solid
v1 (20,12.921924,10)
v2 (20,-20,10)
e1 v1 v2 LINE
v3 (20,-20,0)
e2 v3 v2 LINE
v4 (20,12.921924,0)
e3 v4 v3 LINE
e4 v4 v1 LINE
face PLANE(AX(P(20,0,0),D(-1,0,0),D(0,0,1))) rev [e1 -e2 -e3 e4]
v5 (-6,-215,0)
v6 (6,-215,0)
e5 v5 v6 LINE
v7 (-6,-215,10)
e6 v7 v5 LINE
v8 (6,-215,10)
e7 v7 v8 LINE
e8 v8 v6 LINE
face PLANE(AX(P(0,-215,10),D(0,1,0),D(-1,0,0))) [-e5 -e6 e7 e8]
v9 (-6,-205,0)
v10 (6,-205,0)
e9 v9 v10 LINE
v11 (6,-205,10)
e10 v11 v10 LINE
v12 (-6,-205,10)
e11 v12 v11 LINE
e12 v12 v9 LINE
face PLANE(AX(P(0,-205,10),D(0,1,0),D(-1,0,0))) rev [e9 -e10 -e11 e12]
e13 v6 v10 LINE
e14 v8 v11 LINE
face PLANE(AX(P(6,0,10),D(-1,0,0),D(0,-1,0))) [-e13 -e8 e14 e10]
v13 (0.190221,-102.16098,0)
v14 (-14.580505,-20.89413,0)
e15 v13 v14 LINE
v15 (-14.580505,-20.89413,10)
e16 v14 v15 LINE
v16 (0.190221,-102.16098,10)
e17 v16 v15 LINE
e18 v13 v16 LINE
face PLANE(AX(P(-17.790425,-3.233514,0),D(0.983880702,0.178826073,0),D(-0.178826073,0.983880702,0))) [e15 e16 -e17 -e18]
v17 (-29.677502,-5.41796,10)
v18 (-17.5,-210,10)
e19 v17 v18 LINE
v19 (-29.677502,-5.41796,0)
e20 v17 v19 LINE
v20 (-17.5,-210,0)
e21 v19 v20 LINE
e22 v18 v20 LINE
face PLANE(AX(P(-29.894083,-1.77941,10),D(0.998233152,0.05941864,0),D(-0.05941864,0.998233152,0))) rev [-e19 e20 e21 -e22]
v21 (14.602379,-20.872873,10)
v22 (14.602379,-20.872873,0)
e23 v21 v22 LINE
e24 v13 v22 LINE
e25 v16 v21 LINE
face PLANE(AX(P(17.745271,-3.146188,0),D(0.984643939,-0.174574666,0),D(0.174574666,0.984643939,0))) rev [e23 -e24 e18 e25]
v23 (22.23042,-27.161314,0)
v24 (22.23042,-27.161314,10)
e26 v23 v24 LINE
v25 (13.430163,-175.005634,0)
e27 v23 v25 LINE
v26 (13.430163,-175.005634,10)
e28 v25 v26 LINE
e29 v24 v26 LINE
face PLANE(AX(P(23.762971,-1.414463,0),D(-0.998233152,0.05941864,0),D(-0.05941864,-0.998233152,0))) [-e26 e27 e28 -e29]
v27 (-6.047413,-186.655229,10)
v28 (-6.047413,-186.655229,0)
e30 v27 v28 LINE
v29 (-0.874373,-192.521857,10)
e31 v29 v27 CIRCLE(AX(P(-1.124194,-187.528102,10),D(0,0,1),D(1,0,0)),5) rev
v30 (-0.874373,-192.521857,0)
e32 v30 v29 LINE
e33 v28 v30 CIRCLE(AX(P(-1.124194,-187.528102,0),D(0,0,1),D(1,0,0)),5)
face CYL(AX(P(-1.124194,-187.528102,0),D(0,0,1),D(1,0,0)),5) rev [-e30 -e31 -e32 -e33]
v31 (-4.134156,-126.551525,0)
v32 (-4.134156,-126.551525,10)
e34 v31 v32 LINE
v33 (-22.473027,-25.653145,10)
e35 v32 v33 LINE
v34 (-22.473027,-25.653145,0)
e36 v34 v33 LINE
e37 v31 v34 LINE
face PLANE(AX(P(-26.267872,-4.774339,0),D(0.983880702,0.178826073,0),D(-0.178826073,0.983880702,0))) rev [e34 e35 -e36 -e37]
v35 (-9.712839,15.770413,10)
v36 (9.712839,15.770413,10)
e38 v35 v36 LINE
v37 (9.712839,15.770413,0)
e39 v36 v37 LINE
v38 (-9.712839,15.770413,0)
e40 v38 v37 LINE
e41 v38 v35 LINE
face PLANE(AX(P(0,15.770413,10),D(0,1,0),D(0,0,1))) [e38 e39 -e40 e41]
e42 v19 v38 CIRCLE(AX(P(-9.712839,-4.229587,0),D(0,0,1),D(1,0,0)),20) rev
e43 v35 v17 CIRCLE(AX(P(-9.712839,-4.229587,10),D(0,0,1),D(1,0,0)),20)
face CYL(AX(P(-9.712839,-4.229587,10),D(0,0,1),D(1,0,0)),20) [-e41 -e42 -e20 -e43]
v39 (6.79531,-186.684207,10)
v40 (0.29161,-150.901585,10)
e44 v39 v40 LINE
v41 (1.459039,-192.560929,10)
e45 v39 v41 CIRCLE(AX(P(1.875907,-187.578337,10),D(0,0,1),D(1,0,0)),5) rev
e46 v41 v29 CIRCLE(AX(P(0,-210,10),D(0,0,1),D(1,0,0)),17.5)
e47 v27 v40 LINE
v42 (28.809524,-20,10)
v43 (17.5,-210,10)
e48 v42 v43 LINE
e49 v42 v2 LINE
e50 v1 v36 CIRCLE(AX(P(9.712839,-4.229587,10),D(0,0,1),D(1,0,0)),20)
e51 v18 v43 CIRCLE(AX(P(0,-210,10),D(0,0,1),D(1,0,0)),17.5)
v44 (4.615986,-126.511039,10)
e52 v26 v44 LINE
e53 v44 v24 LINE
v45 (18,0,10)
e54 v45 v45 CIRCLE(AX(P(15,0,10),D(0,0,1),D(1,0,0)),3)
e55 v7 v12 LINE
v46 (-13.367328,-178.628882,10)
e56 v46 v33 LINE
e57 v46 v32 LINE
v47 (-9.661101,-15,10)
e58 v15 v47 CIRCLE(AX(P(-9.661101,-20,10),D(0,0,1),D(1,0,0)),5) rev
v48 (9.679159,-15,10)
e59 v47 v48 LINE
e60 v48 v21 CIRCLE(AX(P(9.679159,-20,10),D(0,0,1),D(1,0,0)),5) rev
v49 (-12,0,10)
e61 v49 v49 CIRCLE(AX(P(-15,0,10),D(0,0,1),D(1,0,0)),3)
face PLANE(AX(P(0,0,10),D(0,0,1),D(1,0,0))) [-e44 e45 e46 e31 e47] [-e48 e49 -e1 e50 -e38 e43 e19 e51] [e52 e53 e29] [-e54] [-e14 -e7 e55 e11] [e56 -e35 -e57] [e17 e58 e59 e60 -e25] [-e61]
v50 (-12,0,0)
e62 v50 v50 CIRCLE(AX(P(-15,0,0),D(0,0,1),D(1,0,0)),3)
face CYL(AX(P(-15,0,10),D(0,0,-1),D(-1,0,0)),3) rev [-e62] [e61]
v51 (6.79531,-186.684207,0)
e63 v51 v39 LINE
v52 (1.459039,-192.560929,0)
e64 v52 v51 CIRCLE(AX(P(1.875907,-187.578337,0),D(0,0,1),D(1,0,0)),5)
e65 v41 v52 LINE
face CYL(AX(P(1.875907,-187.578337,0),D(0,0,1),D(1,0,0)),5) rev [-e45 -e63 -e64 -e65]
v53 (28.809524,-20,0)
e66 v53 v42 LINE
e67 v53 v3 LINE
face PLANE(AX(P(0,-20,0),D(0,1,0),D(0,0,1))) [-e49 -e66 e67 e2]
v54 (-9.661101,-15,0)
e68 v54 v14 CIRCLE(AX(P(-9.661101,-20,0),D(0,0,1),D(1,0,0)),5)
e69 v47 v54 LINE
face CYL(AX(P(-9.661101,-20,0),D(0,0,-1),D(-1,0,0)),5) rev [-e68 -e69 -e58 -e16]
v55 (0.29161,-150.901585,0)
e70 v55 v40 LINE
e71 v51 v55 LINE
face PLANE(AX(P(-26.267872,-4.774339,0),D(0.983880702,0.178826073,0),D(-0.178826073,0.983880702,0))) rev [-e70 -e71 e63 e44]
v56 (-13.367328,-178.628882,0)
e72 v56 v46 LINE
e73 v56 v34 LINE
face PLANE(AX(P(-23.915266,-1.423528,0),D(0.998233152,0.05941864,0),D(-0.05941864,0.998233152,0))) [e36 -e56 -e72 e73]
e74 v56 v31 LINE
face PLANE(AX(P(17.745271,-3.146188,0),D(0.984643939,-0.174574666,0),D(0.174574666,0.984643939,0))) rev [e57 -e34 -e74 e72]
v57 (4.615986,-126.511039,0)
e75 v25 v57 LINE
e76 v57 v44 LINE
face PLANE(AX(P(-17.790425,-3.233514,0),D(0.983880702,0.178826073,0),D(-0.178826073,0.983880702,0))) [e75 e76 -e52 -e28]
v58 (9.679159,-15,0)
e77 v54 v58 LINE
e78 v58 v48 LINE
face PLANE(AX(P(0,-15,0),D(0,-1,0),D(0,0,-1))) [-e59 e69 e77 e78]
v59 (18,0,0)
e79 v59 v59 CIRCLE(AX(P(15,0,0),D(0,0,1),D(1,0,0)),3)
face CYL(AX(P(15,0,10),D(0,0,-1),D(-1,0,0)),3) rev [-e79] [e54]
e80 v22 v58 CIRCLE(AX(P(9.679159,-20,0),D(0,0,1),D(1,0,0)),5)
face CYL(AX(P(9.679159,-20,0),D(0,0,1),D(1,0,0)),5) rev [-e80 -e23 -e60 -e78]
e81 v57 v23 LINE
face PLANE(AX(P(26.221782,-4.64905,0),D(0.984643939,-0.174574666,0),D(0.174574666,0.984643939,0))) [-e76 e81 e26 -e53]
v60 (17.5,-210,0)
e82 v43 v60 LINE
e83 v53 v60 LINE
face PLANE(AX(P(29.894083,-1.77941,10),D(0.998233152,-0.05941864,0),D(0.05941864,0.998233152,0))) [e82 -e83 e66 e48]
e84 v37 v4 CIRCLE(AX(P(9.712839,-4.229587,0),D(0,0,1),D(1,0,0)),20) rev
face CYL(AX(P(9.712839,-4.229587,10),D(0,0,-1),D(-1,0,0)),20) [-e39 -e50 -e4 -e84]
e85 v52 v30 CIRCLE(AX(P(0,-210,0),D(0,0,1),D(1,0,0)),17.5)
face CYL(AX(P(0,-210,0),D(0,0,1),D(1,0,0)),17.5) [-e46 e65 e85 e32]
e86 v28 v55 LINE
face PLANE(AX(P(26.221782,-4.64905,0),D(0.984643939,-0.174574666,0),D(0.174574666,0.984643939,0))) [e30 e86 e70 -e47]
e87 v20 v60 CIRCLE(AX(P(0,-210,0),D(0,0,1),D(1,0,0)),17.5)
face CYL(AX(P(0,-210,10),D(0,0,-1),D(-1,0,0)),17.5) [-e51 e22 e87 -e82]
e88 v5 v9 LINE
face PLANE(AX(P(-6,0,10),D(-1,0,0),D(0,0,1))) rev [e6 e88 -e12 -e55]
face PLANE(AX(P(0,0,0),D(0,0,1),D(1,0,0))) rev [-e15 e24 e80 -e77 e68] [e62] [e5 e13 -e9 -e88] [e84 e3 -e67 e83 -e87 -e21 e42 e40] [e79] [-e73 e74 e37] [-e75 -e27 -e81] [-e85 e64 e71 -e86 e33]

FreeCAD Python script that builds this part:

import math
import FreeCAD as App
import Part
import Sketcher
from FreeCAD import Vector
Q = App.Units.Quantity


def edges_at(feature, points):
    """Names of the edges that pass closest to the given points."""
    edges = feature.Shape.Edges
    near = lambda p: min(range(len(edges)), key=lambda i: edges[i].distToShape(Part.Vertex(*p))[0])
    return sorted({f"Edge{near(p) + 1}" for p in points})

doc = App.newDocument("Part")
body = doc.addObject("PartDesign::Body", "Body")

sketch1 = body.newObject("Sketcher::SketchObject", "Sketch")
sketch1.AttachmentSupport = (doc.getObject("XY_Plane"), [""])
sketch1.MapMode = "FlatFace"
sketch1.addGeometry([
    Part.LineSegment(Vector(-30, 15.8, 0), Vector(-30, 0, 0)),
    Part.LineSegment(Vector(-30, 0, 0), Vector(-17.5, -210, 0)),
    Part.ArcOfCircle(Part.Circle(Vector(0, -210, 0), Vector(0, 0, 1), 17.5), math.radians(180), math.radians(360)),
    Part.LineSegment(Vector(17.5, -210, 0), Vector(30, 0, 0)),
    Part.LineSegment(Vector(30, 0, 0), Vector(30, 15.8, 0)),
    Part.LineSegment(Vector(30, 15.8, 0), Vector(-30, 15.8, 0)),
    Part.LineSegment(Vector(-6, -205, 0), Vector(6, -205, 0)),
    Part.LineSegment(Vector(6, -205, 0), Vector(6, -215, 0)),
    Part.LineSegment(Vector(6, -215, 0), Vector(-6, -215, 0)),
    Part.LineSegment(Vector(-6, -215, 0), Vector(-6, -205, 0)),
    Part.Circle(Vector(-15, 0, 0), Vector(0, 0, 1), 3),
    Part.Circle(Vector(15, 0, 0), Vector(0, 0, 1), 3),
], False)
sketch1.addConstraint([
    Sketcher.Constraint("Coincident", 0, 2, 1, 1),
    Sketcher.Constraint("Coincident", 1, 2, 2, 1),
    Sketcher.Constraint("Coincident", 2, 2, 3, 1),
    Sketcher.Constraint("Coincident", 3, 2, 4, 1),
    Sketcher.Constraint("Coincident", 4, 2, 5, 1),
    Sketcher.Constraint("Coincident", 5, 2, 0, 1),
    Sketcher.Constraint("Coincident", 6, 2, 7, 1),
    Sketcher.Constraint("Coincident", 7, 2, 8, 1),
    Sketcher.Constraint("Coincident", 8, 2, 9, 1),
    Sketcher.Constraint("Coincident", 9, 2, 6, 1),
    Sketcher.Constraint("Vertical", 0),
    Sketcher.Constraint("Vertical", 4),
    Sketcher.Constraint("Horizontal", 5),
    Sketcher.Constraint("Horizontal", 6),
    Sketcher.Constraint("Vertical", 7),
    Sketcher.Constraint("Horizontal", 8),
    Sketcher.Constraint("Vertical", 9),
    Sketcher.Constraint("Equal", 10, 11),
    Sketcher.Constraint("Symmetric", 10, 3, 11, 3, -1, 1),
    Sketcher.Constraint("Symmetric", 0, 2, 3, 2, -1, 1),
    Sketcher.Constraint("Symmetric", 1, 2, 2, 2, -2),
    Sketcher.Constraint("PointOnObject", 10, 3, -1),
    Sketcher.Constraint("PointOnObject", 0, 2, -1),
    Sketcher.Constraint("Horizontal", 2, 3, 1, 2),
    Sketcher.Constraint("Diameter", 10, Q("6 mm")),
    Sketcher.Constraint("Radius", 2, Q("17.5 mm")),
    Sketcher.Constraint("DistanceX", 5, 2, 5, 1, Q("60 mm")),
    Sketcher.Constraint("DistanceX", 6, 1, 6, 2, Q("12 mm")),
    Sketcher.Constraint("DistanceY", 7, 2, 7, 1, Q("10 mm")),
    Sketcher.Constraint("DistanceY", 2, 3, -1, 1, Q("210 mm")),
    Sketcher.Constraint("DistanceX", 10, 3, -1, 1, Q("15 mm")),
    Sketcher.Constraint("DistanceX", -1, 1, 6, 2, Q("6 mm")),
    Sketcher.Constraint("DistanceY", 6, 2, -1, 1, Q("205 mm")),
    Sketcher.Constraint("DistanceY", 0, 2, 0, 1, Q("15.770413 mm")),
])
pad1 = body.newObject("PartDesign::Pad", "Pad")
pad1.Profile = sketch1
pad1.Length = 10
doc.recompute()

fillet = body.newObject("PartDesign::Fillet", "Fillet")
fillet.Base = (pad1, edges_at(pad1, [(-30, 15.77, 5)]))
fillet.Radius = 20
doc.recompute()

fillet2 = body.newObject("PartDesign::Fillet", "Fillet001")
fillet2.Base = (fillet, edges_at(fillet, [(30, 15.77, 5)]))
fillet2.Radius = 20

sketch2 = body.newObject("Sketcher::SketchObject", "Sketch001")
sketch2.AttachmentSupport = (doc.getObject("XY_Plane"), [""])
sketch2.MapMode = "FlatFace"
sketch2.addGeometry([
    Part.LineSegment(Vector(-16, -15, 0), Vector(0, -102, 0)),
    Part.LineSegment(Vector(0, -102, 0), Vector(16, -15, 0)),
    Part.LineSegment(Vector(16, -15, 0), Vector(-16, -15, 0)),
    Part.LineSegment(Vector(-22, -26, 0), Vector(-13, -179, 0)),
    Part.LineSegment(Vector(-13, -179, 0), Vector(-4, -127, 0)),
    Part.LineSegment(Vector(-4, -127, 0), Vector(-22, -26, 0)),
    Part.LineSegment(Vector(22, -27, 0), Vector(5, -127, 0)),
    Part.LineSegment(Vector(5, -127, 0), Vector(13, -175, 0)),
    Part.LineSegment(Vector(13, -175, 0), Vector(22, -27, 0)),
    Part.LineSegment(Vector(0, -151, 0), Vector(-7, -194, 0)),
    Part.ArcOfCircle(Part.Circle(Vector(0, -210, 0), Vector(0, 0, 1), 17), math.radians(62), math.radians(115)),
    Part.LineSegment(Vector(8, -195, 0), Vector(0, -151, 0)),
], False)
sketch2.addConstraint([
    Sketcher.Constraint("Coincident", 0, 2, 1, 1),
    Sketcher.Constraint("Coincident", 1, 2, 2, 1),
    Sketcher.Constraint("Coincident", 2, 2, 0, 1),
    Sketcher.Constraint("Coincident", 3, 2, 4, 1),
    Sketcher.Constraint("Coincident", 4, 2, 5, 1),
    Sketcher.Constraint("Coincident", 5, 2, 3, 1),
    Sketcher.Constraint("Coincident", 6, 2, 7, 1),
    Sketcher.Constraint("Coincident", 7, 2, 8, 1),
    Sketcher.Constraint("Coincident", 8, 2, 6, 1),
    Sketcher.Constraint("Coincident", 9, 2, 10, 2),
    Sketcher.Constraint("Coincident", 10, 1, 11, 1),
    Sketcher.Constraint("Coincident", 11, 2, 9, 1),
    Sketcher.Constraint("Horizontal", 2),
    Sketcher.Constraint("PointOnObject", 10, 3, -2),
    Sketcher.Constraint("Parallel", 1, 4),
    Sketcher.Constraint("Parallel", 0, 5),
    Sketcher.Constraint("Parallel", 4, 6),
    Sketcher.Constraint("Parallel", 5, 7),
    Sketcher.Constraint("Parallel", 6, 9),
    Sketcher.Constraint("Parallel", 7, 11),
    Sketcher.Constraint("Radius", 10, Q("17.5 mm")),
    Sketcher.Constraint("DistanceY", 10, 3, -1, 1, Q("210 mm")),
    Sketcher.Constraint("DistanceY", 1, 2, -1, 1, Q("15 mm")),
    Sketcher.Constraint("Distance", 8, Q("148.106001 mm")),
    Sketcher.Constraint("Distance", 3, Q("153.2465 mm")),
    Sketcher.Constraint("Distance", 7, Q("49.289101 mm")),
    Sketcher.Constraint("Distance", 9, Q("43.901301 mm")),
    Sketcher.Constraint("DistanceX", 2, 2, 2, 1, Q("31.29542 mm")),
    Sketcher.Constraint("DistanceX", 5, 2, 3, 2, Q("9.105699 mm")),
    Sketcher.Constraint("DistanceX", 0, 2, 8, 2, Q("22.040199 mm")),
    Sketcher.Constraint("DistanceY", 9, 2, 7, 2, Q("19.123101 mm")),
    Sketcher.Constraint("Distance", 0, Q("88.588972 mm")),
    Sketcher.Constraint("Distance", 4, Q("52.889531 mm")),
    Sketcher.Constraint("Distance", 11, Q("44.367258 mm")),
    Sketcher.Constraint("DistanceX", -1, 1, 0, 2, Q("0.190221 mm")),
    Sketcher.Constraint("DistanceX", 3, 2, -1, 1, Q("13.367328 mm")),
    Sketcher.Constraint("DistanceY", 3, 2, -1, 1, Q("178.628882 mm")),
])
pocket1 = body.newObject("PartDesign::Pocket", "Pocket")
pocket1.Profile = sketch2
pocket1.Length = 10
pocket1.Reversed = True
doc.recompute()

fillet3 = body.newObject("PartDesign::Fillet", "Fillet002")
fillet3.Base = (pocket1, edges_at(pocket1, [
    (8.226, -194.554, 5),
    (-7.372, -194.129, 5),
    (-15.652, -15, 5),
    (15.644, -15, 5),
]))
fillet3.Radius = 5

sketch3 = body.newObject("Sketcher::SketchObject", "Sketch002")
sketch3.AttachmentSupport = (doc.getObject("XY_Plane"), [""])
sketch3.MapMode = "FlatFace"
sketch3.AttachmentOffset = App.Placement(Vector(0, 0, 10), App.Rotation())
sketch3.addGeometry([
    Part.LineSegment(Vector(20, -20, 0), Vector(29, -20, 0)),
    Part.LineSegment(Vector(29, -20, 0), Vector(30, -5, 0)),
    Part.ArcOfCircle(Part.Circle(Vector(10, -4, 0), Vector(0, 0, 1), 20), math.radians(-3.41), math.radians(12.21)),
    Part.ArcOfCircle(Part.Circle(Vector(10, -4, 0), Vector(0, 0, 1), 20), math.radians(12), math.radians(59)),
    Part.LineSegment(Vector(20, 13, 0), Vector(20, -20, 0)),
], False)
sketch3.addConstraint([
    Sketcher.Constraint("Coincident", 0, 2, 1, 1),
    Sketcher.Constraint("Tangent", 1, 2, 2, 1),
    Sketcher.Constraint("Tangent", 2, 2, 3, 1),
    Sketcher.Constraint("Coincident", 3, 2, 4, 1),
    Sketcher.Constraint("Coincident", 4, 2, 0, 1),
    Sketcher.Constraint("Horizontal", 0),
    Sketcher.Constraint("Vertical", 4),
    Sketcher.Constraint("Equal", 2, 3),
    Sketcher.Constraint("PointOnObject", 2, 2, -1),
    Sketcher.Constraint("Radius", 2, Q("20 mm")),
    Sketcher.Constraint("DistanceY", 0, 2, -1, 1, Q("20 mm")),
    Sketcher.Constraint("DistanceX", -1, 1, 3, 2, Q("20 mm")),
    Sketcher.Constraint("Distance", 1, Q("14.60785 mm")),
    Sketcher.Constraint("DistanceX", 0, 1, 0, 2, Q("8.809524 mm")),
    Sketcher.Constraint("DistanceY", 4, 2, 4, 1, Q("32.921924 mm")),
])
pocket2 = body.newObject("PartDesign::Pocket", "Pocket001")
pocket2.Profile = sketch3
pocket2.Length = 10

doc.recompute()
